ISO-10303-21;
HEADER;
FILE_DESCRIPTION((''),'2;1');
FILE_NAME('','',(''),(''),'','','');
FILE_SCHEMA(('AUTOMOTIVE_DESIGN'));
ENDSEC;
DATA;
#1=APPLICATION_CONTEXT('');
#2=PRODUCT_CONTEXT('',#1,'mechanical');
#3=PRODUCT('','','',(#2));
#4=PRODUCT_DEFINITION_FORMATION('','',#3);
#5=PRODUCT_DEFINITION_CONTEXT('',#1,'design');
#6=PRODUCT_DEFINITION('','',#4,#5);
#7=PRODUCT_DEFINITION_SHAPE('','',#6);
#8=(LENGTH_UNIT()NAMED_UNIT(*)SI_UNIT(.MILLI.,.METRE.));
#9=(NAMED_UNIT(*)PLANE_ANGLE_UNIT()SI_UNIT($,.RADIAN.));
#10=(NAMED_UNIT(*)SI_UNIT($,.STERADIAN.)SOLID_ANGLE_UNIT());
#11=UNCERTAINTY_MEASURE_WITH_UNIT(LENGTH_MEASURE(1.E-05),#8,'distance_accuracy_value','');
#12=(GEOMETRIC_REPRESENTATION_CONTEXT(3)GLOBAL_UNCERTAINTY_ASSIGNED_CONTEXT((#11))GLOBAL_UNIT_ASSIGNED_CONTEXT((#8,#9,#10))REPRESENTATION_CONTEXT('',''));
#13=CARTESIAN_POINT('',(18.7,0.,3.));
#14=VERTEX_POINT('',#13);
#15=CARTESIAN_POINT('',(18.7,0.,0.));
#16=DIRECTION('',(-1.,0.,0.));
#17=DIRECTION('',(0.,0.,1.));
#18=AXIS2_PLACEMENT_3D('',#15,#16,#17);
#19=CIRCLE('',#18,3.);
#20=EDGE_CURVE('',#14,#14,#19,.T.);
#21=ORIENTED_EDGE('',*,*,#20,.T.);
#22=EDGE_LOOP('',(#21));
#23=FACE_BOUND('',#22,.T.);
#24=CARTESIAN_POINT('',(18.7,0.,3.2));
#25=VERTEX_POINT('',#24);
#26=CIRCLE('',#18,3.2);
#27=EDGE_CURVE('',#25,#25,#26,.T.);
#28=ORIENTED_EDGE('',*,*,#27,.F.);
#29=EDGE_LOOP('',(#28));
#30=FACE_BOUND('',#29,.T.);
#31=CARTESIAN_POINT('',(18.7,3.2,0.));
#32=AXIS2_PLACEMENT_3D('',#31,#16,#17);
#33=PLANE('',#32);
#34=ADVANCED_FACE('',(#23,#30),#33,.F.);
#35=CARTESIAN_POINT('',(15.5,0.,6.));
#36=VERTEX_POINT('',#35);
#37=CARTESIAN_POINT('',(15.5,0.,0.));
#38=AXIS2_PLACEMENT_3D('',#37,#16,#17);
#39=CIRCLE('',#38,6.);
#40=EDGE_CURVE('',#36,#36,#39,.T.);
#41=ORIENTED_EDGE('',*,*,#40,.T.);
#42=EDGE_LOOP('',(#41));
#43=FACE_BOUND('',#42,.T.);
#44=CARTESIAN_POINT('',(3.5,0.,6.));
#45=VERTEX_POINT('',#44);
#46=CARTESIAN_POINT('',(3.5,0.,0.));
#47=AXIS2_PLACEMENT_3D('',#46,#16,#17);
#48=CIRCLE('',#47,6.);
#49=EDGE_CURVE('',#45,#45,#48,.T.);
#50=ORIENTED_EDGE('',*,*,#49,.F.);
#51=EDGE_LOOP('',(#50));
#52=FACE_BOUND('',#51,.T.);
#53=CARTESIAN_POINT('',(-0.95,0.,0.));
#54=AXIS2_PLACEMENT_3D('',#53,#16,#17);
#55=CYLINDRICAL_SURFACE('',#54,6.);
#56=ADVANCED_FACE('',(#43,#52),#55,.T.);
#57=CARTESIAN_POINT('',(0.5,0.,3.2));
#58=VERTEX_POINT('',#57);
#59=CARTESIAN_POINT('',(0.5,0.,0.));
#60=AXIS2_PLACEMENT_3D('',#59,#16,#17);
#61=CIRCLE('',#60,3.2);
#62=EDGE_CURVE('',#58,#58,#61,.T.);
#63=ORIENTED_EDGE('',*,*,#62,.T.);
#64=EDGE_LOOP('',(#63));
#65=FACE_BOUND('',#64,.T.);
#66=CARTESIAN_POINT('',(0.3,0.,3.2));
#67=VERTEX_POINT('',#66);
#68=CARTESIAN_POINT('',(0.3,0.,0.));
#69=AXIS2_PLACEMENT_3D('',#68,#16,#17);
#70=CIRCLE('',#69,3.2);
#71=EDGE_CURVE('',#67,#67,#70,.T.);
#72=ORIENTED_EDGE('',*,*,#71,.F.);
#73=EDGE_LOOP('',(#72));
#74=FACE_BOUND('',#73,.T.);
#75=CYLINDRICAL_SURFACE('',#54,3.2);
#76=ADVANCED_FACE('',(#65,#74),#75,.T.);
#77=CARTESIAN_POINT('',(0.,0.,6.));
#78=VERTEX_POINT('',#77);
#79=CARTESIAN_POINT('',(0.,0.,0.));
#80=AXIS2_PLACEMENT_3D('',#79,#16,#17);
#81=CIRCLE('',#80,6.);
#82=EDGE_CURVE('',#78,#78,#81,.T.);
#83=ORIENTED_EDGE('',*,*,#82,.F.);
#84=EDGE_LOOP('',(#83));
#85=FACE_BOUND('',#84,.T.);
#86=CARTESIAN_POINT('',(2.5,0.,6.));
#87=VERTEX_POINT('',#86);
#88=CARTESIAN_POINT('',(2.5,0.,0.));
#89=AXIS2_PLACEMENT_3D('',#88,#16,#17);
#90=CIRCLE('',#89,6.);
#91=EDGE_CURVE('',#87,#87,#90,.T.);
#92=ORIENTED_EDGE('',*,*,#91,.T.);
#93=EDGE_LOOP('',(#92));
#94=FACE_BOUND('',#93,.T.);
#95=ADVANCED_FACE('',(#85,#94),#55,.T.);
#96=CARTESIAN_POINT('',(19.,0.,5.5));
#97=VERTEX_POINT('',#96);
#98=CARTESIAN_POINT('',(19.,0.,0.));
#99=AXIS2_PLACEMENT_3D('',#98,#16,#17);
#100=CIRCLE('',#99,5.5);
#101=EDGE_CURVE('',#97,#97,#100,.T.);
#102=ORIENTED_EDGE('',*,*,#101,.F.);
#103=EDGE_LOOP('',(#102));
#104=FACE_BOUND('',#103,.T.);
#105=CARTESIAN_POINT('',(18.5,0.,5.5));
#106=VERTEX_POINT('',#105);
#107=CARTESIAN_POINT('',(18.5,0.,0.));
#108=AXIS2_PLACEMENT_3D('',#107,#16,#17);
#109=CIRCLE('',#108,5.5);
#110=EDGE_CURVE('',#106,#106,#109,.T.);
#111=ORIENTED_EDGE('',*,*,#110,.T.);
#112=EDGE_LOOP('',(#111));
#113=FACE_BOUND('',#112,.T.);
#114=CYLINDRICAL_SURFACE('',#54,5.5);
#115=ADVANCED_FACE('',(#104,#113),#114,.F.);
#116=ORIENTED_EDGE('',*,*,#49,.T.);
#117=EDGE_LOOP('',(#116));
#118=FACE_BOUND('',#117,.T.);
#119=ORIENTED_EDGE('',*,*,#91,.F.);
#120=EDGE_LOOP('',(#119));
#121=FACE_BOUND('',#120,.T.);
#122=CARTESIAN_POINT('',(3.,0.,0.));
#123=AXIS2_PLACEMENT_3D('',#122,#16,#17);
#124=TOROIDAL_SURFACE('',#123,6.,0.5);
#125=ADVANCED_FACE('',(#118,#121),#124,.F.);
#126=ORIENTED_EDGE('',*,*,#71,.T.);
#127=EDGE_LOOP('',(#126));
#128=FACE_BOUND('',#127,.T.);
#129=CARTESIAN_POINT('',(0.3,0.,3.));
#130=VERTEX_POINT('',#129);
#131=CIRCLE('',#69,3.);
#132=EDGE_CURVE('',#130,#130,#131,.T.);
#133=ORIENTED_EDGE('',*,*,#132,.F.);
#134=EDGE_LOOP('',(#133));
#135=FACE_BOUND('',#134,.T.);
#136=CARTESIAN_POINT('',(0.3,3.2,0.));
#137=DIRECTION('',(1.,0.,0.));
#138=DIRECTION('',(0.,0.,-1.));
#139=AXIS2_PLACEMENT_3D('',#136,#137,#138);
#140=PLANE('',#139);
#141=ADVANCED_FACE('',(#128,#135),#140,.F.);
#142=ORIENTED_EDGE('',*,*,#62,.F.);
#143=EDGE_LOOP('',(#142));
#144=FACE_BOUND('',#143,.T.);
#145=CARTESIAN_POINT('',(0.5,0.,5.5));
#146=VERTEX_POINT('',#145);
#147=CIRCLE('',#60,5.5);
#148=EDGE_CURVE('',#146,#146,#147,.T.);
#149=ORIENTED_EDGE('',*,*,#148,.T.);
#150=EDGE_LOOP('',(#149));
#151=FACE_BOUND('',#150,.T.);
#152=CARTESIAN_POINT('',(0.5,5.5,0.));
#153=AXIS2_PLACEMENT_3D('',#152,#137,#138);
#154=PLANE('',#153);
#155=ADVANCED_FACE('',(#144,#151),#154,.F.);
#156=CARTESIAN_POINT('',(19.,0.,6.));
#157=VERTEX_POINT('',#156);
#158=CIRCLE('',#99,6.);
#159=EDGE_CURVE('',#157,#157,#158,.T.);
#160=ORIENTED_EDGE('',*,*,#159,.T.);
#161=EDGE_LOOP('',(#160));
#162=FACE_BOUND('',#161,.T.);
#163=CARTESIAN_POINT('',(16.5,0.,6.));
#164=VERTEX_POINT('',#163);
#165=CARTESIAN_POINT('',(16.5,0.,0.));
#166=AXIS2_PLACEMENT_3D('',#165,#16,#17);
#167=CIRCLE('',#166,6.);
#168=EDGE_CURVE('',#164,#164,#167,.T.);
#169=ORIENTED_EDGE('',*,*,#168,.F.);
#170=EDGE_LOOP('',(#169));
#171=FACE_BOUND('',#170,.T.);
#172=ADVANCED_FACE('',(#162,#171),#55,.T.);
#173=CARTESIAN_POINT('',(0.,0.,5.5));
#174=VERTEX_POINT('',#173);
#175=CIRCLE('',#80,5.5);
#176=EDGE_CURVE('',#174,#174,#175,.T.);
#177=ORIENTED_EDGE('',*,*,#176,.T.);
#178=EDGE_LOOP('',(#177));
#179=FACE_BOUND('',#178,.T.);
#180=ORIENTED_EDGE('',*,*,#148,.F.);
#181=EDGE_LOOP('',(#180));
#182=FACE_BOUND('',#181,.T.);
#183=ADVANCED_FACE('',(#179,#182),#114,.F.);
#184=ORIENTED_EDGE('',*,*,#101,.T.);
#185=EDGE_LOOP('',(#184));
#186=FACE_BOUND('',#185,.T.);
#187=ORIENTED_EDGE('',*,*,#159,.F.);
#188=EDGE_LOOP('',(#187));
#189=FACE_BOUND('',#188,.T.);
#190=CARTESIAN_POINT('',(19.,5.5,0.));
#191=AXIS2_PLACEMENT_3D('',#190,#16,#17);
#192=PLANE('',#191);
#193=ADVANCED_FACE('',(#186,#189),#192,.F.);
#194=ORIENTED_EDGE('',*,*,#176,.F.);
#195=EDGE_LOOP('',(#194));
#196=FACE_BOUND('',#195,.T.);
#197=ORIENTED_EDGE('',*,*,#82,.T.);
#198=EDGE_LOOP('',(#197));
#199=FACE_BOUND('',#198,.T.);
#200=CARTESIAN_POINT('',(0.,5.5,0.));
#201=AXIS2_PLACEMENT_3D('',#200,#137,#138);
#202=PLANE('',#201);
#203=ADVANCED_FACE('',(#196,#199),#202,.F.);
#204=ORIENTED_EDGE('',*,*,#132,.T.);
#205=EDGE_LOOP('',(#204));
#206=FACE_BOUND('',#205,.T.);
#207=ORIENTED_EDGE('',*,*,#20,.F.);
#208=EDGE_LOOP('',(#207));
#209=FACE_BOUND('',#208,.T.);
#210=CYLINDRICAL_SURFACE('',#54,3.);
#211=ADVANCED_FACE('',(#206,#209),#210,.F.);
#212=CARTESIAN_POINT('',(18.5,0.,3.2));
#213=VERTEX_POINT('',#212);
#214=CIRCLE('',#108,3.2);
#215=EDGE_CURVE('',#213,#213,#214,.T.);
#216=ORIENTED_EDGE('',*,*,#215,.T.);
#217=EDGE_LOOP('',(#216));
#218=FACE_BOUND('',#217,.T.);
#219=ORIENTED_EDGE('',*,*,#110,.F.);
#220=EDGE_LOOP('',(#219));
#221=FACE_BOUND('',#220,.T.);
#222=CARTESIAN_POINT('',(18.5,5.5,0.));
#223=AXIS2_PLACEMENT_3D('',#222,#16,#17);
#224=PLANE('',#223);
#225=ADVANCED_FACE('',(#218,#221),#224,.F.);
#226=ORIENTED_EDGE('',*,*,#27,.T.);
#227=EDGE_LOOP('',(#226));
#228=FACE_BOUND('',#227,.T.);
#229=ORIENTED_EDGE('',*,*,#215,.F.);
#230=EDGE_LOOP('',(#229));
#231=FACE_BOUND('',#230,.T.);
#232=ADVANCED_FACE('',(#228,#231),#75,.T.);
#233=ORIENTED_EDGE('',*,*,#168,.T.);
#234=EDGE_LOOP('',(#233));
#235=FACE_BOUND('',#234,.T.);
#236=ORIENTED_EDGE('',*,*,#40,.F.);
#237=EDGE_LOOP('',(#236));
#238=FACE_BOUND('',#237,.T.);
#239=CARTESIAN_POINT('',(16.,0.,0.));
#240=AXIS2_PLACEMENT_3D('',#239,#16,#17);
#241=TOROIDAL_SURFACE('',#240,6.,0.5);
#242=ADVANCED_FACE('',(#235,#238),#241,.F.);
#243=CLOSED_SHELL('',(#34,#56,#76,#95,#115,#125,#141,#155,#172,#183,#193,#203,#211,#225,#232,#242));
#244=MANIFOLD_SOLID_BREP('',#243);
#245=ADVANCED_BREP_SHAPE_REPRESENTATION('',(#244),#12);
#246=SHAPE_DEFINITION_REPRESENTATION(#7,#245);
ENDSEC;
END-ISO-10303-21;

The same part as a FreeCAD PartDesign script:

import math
import FreeCAD as App
import Part
import Sketcher

V = App.Vector
Q = App.Units.Quantity

doc = App.newDocument("Part")
body = doc.addObject("PartDesign::Body", "Body")

sketch1 = body.newObject("Sketcher::SketchObject", "Sketch")
sketch1.AttachmentSupport = (doc.getObject("XY_Plane"), [""])
sketch1.MapMode = "FlatFace"
sketch1.addGeometry(Part.LineSegment(V(15.5, 6, 0), V(3.5, 6, 0)), False)
sketch1.addGeometry(Part.ArcOfCircle(Part.Circle(V(3, 6, 0), V(0, 0, 1), 0.5), math.radians(180), math.radians(360)), False)
sketch1.addGeometry(Part.LineSegment(V(2.5, 6, 0), V(0, 6, 0)), False)
sketch1.addGeometry(Part.LineSegment(V(0, 6, 0), V(0, 5.5, 0)), False)
sketch1.addGeometry(Part.LineSegment(V(0, 5.5, 0), V(0.5, 5.5, 0)), False)
sketch1.addGeometry(Part.LineSegment(V(0.5, 5.5, 0), V(0.5, 3.2, 0)), False)
sketch1.addGeometry(Part.LineSegment(V(0.5, 3.2, 0), V(0.3, 3.2, 0)), False)
sketch1.addGeometry(Part.LineSegment(V(0.3, 3.2, 0), V(0.3, 3, 0)), False)
sketch1.addGeometry(Part.LineSegment(V(0.3, 3, 0), V(18.7, 3, 0)), False)
sketch1.addGeometry(Part.LineSegment(V(18.7, 3, 0), V(18.7, 3.2, 0)), False)
sketch1.addGeometry(Part.LineSegment(V(18.7, 3.2, 0), V(18.5, 3.2, 0)), False)
sketch1.addGeometry(Part.LineSegment(V(18.5, 3.2, 0), V(18.5, 5.5, 0)), False)
sketch1.addGeometry(Part.LineSegment(V(18.5, 5.5, 0), V(19, 5.5, 0)), False)
sketch1.addGeometry(Part.LineSegment(V(19, 5.5, 0), V(19, 6, 0)), False)
sketch1.addGeometry(Part.LineSegment(V(19, 6, 0), V(16.5, 6, 0)), False)
sketch1.addGeometry(Part.ArcOfCircle(Part.Circle(V(16, 6, 0), V(0, 0, 1), 0.5), math.radians(180), math.radians(360)), False)
sketch1.addConstraint(Sketcher.Constraint("Coincident", 0, 2, 1, 2))
sketch1.addConstraint(Sketcher.Constraint("Coincident", 1, 1, 2, 1))
sketch1.addConstraint(Sketcher.Constraint("Coincident", 2, 2, 3, 1))
sketch1.addConstraint(Sketcher.Constraint("Coincident", 3, 2, 4, 1))
sketch1.addConstraint(Sketcher.Constraint("Coincident", 4, 2, 5, 1))
sketch1.addConstraint(Sketcher.Constraint("Coincident", 5, 2, 6, 1))
sketch1.addConstraint(Sketcher.Constraint("Coincident", 6, 2, 7, 1))
sketch1.addConstraint(Sketcher.Constraint("Coincident", 7, 2, 8, 1))
sketch1.addConstraint(Sketcher.Constraint("Coincident", 8, 2, 9, 1))
sketch1.addConstraint(Sketcher.Constraint("Coincident", 9, 2, 10, 1))
sketch1.addConstraint(Sketcher.Constraint("Coincident", 10, 2, 11, 1))
sketch1.addConstraint(Sketcher.Constraint("Coincident", 11, 2, 12, 1))
sketch1.addConstraint(Sketcher.Constraint("Coincident", 12, 2, 13, 1))
sketch1.addConstraint(Sketcher.Constraint("Coincident", 13, 2, 14, 1))
sketch1.addConstraint(Sketcher.Constraint("Coincident", 14, 2, 15, 2))
sketch1.addConstraint(Sketcher.Constraint("Coincident", 15, 1, 0, 1))
sketch1.addConstraint(Sketcher.Constraint("Horizontal", 0))
sketch1.addConstraint(Sketcher.Constraint("Horizontal", 2))
sketch1.addConstraint(Sketcher.Constraint("Vertical", 3))
sketch1.addConstraint(Sketcher.Constraint("Horizontal", 4))
sketch1.addConstraint(Sketcher.Constraint("Vertical", 5))
sketch1.addConstraint(Sketcher.Constraint("Horizontal", 6))
sketch1.addConstraint(Sketcher.Constraint("Vertical", 7))
sketch1.addConstraint(Sketcher.Constraint("Horizontal", 8))
sketch1.addConstraint(Sketcher.Constraint("Vertical", 9))
sketch1.addConstraint(Sketcher.Constraint("Horizontal", 10))
sketch1.addConstraint(Sketcher.Constraint("Vertical", 11))
sketch1.addConstraint(Sketcher.Constraint("Horizontal", 12))
sketch1.addConstraint(Sketcher.Constraint("Vertical", 13))
sketch1.addConstraint(Sketcher.Constraint("Horizontal", 14))
sketch1.addConstraint(Sketcher.Constraint("Equal", 1, 15))
sketch1.addConstraint(Sketcher.Constraint("PointOnObject", 2, 2, -2))
sketch1.addConstraint(Sketcher.Constraint("Horizontal", 1, 3, 15, 3))
sketch1.addConstraint(Sketcher.Constraint("Horizontal", 15, 3, 0, 2))
sketch1.addConstraint(Sketcher.Constraint("Horizontal", 0, 2, 1, 1))
sketch1.addConstraint(Sketcher.Constraint("Horizontal", 6, 2, 9, 2))
sketch1.addConstraint(Sketcher.Constraint("Horizontal", 4, 2, 11, 2))
sketch1.addConstraint(Sketcher.Constraint("Horizontal", 2, 2, 13, 2))
sketch1.addConstraint(Sketcher.Constraint("Equal", 6, 10))
sketch1.addConstraint(Sketcher.Constraint("Equal", 4, 12))
sketch1.addConstraint(Sketcher.Constraint("Equal", 2, 14))
sketch1.addConstraint(Sketcher.Constraint("Equal", 12, 3))
sketch1.addConstraint(Sketcher.Constraint("Equal", 10, 7))
sketch1.addConstraint(Sketcher.Constraint("Radius", 1, Q("0.5 mm")))
sketch1.addConstraint(Sketcher.Constraint("DistanceX", 0, 2, 0, 1, Q("12 mm")))
sketch1.addConstraint(Sketcher.Constraint("DistanceX", 2, 2, 2, 1, Q("2.5 mm")))
sketch1.addConstraint(Sketcher.Constraint("DistanceX", 4, 1, 4, 2, Q("0.5 mm")))
sketch1.addConstraint(Sketcher.Constraint("DistanceX", 6, 2, 6, 1, Q("0.2 mm")))
sketch1.addConstraint(Sketcher.Constraint("DistanceY", 5, 2, 5, 1, Q("2.3 mm")))
sketch1.addConstraint(Sketcher.Constraint("DistanceY", -1, 1, 1, 3, Q("6 mm")))
revolution = body.newObject("PartDesign::Revolution", "Revolution")
revolution.Profile = sketch1
revolution.ReferenceAxis = (sketch1, ["H_Axis"])
revolution.Angle = 360

doc.recompute()
